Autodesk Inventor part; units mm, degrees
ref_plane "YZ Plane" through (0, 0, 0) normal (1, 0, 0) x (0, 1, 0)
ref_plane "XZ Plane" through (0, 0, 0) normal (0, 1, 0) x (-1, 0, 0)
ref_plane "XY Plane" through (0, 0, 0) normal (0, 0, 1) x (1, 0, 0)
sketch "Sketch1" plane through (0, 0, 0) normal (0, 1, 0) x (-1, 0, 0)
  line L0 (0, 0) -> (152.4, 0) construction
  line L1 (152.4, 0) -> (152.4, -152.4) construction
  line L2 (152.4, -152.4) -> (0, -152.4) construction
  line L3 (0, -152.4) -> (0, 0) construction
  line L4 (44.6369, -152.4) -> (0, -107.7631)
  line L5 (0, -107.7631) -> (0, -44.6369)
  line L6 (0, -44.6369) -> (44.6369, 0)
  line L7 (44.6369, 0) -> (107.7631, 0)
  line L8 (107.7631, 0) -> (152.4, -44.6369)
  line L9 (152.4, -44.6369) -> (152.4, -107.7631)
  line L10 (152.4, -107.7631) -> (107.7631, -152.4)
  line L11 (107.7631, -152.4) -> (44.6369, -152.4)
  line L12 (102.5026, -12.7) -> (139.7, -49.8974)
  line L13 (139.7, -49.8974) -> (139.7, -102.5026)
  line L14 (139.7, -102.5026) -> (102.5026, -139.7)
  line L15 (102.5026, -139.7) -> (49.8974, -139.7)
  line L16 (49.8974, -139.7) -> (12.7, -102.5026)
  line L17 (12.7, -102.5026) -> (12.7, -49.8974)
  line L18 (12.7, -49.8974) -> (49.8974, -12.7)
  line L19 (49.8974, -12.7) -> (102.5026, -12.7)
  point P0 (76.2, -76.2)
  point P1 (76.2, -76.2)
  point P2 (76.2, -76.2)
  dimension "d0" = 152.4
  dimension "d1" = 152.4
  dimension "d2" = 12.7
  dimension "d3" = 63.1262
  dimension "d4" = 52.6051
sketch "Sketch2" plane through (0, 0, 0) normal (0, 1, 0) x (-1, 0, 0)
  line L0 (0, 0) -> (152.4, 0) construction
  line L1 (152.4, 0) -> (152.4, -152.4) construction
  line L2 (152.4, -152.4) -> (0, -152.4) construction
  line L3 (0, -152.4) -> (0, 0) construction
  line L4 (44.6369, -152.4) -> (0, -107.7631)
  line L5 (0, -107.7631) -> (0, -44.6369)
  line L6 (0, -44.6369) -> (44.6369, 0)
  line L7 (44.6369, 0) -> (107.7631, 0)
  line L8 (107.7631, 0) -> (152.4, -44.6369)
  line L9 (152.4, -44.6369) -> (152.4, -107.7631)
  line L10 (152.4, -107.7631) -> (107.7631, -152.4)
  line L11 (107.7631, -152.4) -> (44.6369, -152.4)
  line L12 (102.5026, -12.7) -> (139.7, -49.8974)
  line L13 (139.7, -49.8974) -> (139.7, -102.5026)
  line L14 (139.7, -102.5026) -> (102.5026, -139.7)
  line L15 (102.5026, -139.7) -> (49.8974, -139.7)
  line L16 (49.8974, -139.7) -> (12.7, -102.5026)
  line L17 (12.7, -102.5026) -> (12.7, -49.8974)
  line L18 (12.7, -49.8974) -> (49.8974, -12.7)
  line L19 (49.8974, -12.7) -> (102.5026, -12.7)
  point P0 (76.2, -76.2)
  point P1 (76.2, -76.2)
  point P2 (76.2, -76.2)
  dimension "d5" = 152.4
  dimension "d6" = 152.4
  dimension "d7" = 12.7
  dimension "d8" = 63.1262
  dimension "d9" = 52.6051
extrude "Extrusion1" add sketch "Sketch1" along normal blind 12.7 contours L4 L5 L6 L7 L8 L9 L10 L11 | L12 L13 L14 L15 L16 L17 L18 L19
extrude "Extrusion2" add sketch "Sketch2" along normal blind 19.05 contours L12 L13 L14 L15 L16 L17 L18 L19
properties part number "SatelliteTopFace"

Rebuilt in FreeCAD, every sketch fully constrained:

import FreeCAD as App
import Part
import Sketcher
from FreeCAD import Vector
Q = App.Units.Quantity

doc = App.newDocument("Part")
body = doc.addObject("PartDesign::Body", "Body")

# Sketch on XZ plane
sketch1 = doc.addObject("Sketcher::SketchObject", "Sketch")
body.addObject(sketch1)
sketch1.AttachmentSupport = (doc.XZ_Plane, [""])
sketch1.MapMode = "FlatFace"
sketch1.addGeometry([
    Part.LineSegment(Vector(0, -108, 0), Vector(-45, -152, 0)),  # 0
    Part.LineSegment(Vector(-45, -152, 0), Vector(-108, -152, 0)),  # 1
    Part.LineSegment(Vector(-108, -152, 0), Vector(-152, -108, 0)),  # 2
    Part.LineSegment(Vector(-152, -108, 0), Vector(-152, -45, 0)),  # 3
    Part.LineSegment(Vector(-152, -45, 0), Vector(-108, 0, 0)),  # 4
    Part.LineSegment(Vector(-108, 0, 0), Vector(-45, 0, 0)),  # 5
    Part.LineSegment(Vector(-45, 0, 0), Vector(0, -45, 0)),  # 6
    Part.LineSegment(Vector(0, -45, 0), Vector(0, -108, 0)),  # 7
], False)
sketch1.addConstraint([
    Sketcher.Constraint("Coincident", 0, 2, 1, 1),
    Sketcher.Constraint("Coincident", 1, 2, 2, 1),
    Sketcher.Constraint("Coincident", 2, 2, 3, 1),
    Sketcher.Constraint("Coincident", 3, 2, 4, 1),
    Sketcher.Constraint("Coincident", 4, 2, 5, 1),
    Sketcher.Constraint("Coincident", 5, 2, 6, 1),
    Sketcher.Constraint("Coincident", 6, 2, 7, 1),
    Sketcher.Constraint("Coincident", 7, 2, 0, 1),
    Sketcher.Constraint("Horizontal", 1),
    Sketcher.Constraint("Vertical", 3),
    Sketcher.Constraint("Horizontal", 5),
    Sketcher.Constraint("Vertical", 7),
    Sketcher.Constraint("PointOnObject", 4, 2, -1),
    Sketcher.Constraint("PointOnObject", 6, 2, -2),
    Sketcher.Constraint("Perpendicular", 0, 2),
    Sketcher.Constraint("Perpendicular", 2, 4),
    Sketcher.Constraint("Perpendicular", 4, 6),
    Sketcher.Constraint("Horizontal", 3, 2, 6, 2),
    Sketcher.Constraint("Horizontal", 2, 2, 7, 2),
    Sketcher.Constraint("Vertical", 1, 2, 4, 2),
    Sketcher.Constraint("Vertical", 0, 2, 5, 2),
    Sketcher.Constraint("Equal", 5, 3),
    Sketcher.Constraint("DistanceY", 0, 2, -1, 1, Q("6 in")),
    Sketcher.Constraint("DistanceX", 1, 2, 1, 1, Q("63.1262 mm")),
])
pad1 = doc.addObject("PartDesign::Pad", "Pad")
body.addObject(pad1)
pad1.Profile = sketch1
pad1.Length = Q("0.5 in")
pad1.Reversed = True

# Sketch on XZ plane
sketch2 = doc.addObject("Sketcher::SketchObject", "Sketch001")
body.addObject(sketch2)
sketch2.AttachmentSupport = (doc.XZ_Plane, [""])
sketch2.MapMode = "FlatFace"
sketch2.addGeometry([
    Part.LineSegment(Vector(-140, -50, 0), Vector(-103, -13, 0)),  # 0
    Part.LineSegment(Vector(-103, -13, 0), Vector(-50, -13, 0)),  # 1
    Part.LineSegment(Vector(-50, -13, 0), Vector(-13, -50, 0)),  # 2
    Part.LineSegment(Vector(-13, -50, 0), Vector(-13, -103, 0)),  # 3
    Part.LineSegment(Vector(-13, -103, 0), Vector(-50, -140, 0)),  # 4
    Part.LineSegment(Vector(-50, -140, 0), Vector(-103, -140, 0)),  # 5
    Part.LineSegment(Vector(-103, -140, 0), Vector(-140, -103, 0)),  # 6
    Part.LineSegment(Vector(-140, -103, 0), Vector(-140, -50, 0)),  # 7
], False)
sketch2.addConstraint([
    Sketcher.Constraint("Coincident", 0, 2, 1, 1),
    Sketcher.Constraint("Coincident", 1, 2, 2, 1),
    Sketcher.Constraint("Coincident", 2, 2, 3, 1),
    Sketcher.Constraint("Coincident", 3, 2, 4, 1),
    Sketcher.Constraint("Coincident", 4, 2, 5, 1),
    Sketcher.Constraint("Coincident", 5, 2, 6, 1),
    Sketcher.Constraint("Coincident", 6, 2, 7, 1),
    Sketcher.Constraint("Coincident", 7, 2, 0, 1),
    Sketcher.Constraint("Horizontal", 1),
    Sketcher.Constraint("Vertical", 3),
    Sketcher.Constraint("Horizontal", 5),
    Sketcher.Constraint("Vertical", 7),
    Sketcher.Constraint("Perpendicular", 0, 2),
    Sketcher.Constraint("Perpendicular", 2, 4),
    Sketcher.Constraint("Perpendicular", 4, 6),
    Sketcher.Constraint("Horizontal", 3, 2, 6, 2),
    Sketcher.Constraint("Horizontal", 2, 2, 7, 2),
    Sketcher.Constraint("Vertical", 1, 2, 4, 2),
    Sketcher.Constraint("Vertical", 0, 2, 5, 2),
    Sketcher.Constraint("Equal", 5, 3),
    Sketcher.Constraint("DistanceY", 0, 2, -1, 1, Q("0.5 in")),
    Sketcher.Constraint("DistanceX", 2, 2, -1, 1, Q("0.5 in")),
    Sketcher.Constraint("DistanceY", 4, 2, 1, 2, Q("5 in")),
    Sketcher.Constraint("DistanceX", 1, 1, 1, 2, Q("52.6052 mm")),
])
pad2 = doc.addObject("PartDesign::Pad", "Pad001")
body.addObject(pad2)
pad2.Profile = sketch2
pad2.Length = Q("0.75 in")
pad2.Reversed = True

doc.recompute()
